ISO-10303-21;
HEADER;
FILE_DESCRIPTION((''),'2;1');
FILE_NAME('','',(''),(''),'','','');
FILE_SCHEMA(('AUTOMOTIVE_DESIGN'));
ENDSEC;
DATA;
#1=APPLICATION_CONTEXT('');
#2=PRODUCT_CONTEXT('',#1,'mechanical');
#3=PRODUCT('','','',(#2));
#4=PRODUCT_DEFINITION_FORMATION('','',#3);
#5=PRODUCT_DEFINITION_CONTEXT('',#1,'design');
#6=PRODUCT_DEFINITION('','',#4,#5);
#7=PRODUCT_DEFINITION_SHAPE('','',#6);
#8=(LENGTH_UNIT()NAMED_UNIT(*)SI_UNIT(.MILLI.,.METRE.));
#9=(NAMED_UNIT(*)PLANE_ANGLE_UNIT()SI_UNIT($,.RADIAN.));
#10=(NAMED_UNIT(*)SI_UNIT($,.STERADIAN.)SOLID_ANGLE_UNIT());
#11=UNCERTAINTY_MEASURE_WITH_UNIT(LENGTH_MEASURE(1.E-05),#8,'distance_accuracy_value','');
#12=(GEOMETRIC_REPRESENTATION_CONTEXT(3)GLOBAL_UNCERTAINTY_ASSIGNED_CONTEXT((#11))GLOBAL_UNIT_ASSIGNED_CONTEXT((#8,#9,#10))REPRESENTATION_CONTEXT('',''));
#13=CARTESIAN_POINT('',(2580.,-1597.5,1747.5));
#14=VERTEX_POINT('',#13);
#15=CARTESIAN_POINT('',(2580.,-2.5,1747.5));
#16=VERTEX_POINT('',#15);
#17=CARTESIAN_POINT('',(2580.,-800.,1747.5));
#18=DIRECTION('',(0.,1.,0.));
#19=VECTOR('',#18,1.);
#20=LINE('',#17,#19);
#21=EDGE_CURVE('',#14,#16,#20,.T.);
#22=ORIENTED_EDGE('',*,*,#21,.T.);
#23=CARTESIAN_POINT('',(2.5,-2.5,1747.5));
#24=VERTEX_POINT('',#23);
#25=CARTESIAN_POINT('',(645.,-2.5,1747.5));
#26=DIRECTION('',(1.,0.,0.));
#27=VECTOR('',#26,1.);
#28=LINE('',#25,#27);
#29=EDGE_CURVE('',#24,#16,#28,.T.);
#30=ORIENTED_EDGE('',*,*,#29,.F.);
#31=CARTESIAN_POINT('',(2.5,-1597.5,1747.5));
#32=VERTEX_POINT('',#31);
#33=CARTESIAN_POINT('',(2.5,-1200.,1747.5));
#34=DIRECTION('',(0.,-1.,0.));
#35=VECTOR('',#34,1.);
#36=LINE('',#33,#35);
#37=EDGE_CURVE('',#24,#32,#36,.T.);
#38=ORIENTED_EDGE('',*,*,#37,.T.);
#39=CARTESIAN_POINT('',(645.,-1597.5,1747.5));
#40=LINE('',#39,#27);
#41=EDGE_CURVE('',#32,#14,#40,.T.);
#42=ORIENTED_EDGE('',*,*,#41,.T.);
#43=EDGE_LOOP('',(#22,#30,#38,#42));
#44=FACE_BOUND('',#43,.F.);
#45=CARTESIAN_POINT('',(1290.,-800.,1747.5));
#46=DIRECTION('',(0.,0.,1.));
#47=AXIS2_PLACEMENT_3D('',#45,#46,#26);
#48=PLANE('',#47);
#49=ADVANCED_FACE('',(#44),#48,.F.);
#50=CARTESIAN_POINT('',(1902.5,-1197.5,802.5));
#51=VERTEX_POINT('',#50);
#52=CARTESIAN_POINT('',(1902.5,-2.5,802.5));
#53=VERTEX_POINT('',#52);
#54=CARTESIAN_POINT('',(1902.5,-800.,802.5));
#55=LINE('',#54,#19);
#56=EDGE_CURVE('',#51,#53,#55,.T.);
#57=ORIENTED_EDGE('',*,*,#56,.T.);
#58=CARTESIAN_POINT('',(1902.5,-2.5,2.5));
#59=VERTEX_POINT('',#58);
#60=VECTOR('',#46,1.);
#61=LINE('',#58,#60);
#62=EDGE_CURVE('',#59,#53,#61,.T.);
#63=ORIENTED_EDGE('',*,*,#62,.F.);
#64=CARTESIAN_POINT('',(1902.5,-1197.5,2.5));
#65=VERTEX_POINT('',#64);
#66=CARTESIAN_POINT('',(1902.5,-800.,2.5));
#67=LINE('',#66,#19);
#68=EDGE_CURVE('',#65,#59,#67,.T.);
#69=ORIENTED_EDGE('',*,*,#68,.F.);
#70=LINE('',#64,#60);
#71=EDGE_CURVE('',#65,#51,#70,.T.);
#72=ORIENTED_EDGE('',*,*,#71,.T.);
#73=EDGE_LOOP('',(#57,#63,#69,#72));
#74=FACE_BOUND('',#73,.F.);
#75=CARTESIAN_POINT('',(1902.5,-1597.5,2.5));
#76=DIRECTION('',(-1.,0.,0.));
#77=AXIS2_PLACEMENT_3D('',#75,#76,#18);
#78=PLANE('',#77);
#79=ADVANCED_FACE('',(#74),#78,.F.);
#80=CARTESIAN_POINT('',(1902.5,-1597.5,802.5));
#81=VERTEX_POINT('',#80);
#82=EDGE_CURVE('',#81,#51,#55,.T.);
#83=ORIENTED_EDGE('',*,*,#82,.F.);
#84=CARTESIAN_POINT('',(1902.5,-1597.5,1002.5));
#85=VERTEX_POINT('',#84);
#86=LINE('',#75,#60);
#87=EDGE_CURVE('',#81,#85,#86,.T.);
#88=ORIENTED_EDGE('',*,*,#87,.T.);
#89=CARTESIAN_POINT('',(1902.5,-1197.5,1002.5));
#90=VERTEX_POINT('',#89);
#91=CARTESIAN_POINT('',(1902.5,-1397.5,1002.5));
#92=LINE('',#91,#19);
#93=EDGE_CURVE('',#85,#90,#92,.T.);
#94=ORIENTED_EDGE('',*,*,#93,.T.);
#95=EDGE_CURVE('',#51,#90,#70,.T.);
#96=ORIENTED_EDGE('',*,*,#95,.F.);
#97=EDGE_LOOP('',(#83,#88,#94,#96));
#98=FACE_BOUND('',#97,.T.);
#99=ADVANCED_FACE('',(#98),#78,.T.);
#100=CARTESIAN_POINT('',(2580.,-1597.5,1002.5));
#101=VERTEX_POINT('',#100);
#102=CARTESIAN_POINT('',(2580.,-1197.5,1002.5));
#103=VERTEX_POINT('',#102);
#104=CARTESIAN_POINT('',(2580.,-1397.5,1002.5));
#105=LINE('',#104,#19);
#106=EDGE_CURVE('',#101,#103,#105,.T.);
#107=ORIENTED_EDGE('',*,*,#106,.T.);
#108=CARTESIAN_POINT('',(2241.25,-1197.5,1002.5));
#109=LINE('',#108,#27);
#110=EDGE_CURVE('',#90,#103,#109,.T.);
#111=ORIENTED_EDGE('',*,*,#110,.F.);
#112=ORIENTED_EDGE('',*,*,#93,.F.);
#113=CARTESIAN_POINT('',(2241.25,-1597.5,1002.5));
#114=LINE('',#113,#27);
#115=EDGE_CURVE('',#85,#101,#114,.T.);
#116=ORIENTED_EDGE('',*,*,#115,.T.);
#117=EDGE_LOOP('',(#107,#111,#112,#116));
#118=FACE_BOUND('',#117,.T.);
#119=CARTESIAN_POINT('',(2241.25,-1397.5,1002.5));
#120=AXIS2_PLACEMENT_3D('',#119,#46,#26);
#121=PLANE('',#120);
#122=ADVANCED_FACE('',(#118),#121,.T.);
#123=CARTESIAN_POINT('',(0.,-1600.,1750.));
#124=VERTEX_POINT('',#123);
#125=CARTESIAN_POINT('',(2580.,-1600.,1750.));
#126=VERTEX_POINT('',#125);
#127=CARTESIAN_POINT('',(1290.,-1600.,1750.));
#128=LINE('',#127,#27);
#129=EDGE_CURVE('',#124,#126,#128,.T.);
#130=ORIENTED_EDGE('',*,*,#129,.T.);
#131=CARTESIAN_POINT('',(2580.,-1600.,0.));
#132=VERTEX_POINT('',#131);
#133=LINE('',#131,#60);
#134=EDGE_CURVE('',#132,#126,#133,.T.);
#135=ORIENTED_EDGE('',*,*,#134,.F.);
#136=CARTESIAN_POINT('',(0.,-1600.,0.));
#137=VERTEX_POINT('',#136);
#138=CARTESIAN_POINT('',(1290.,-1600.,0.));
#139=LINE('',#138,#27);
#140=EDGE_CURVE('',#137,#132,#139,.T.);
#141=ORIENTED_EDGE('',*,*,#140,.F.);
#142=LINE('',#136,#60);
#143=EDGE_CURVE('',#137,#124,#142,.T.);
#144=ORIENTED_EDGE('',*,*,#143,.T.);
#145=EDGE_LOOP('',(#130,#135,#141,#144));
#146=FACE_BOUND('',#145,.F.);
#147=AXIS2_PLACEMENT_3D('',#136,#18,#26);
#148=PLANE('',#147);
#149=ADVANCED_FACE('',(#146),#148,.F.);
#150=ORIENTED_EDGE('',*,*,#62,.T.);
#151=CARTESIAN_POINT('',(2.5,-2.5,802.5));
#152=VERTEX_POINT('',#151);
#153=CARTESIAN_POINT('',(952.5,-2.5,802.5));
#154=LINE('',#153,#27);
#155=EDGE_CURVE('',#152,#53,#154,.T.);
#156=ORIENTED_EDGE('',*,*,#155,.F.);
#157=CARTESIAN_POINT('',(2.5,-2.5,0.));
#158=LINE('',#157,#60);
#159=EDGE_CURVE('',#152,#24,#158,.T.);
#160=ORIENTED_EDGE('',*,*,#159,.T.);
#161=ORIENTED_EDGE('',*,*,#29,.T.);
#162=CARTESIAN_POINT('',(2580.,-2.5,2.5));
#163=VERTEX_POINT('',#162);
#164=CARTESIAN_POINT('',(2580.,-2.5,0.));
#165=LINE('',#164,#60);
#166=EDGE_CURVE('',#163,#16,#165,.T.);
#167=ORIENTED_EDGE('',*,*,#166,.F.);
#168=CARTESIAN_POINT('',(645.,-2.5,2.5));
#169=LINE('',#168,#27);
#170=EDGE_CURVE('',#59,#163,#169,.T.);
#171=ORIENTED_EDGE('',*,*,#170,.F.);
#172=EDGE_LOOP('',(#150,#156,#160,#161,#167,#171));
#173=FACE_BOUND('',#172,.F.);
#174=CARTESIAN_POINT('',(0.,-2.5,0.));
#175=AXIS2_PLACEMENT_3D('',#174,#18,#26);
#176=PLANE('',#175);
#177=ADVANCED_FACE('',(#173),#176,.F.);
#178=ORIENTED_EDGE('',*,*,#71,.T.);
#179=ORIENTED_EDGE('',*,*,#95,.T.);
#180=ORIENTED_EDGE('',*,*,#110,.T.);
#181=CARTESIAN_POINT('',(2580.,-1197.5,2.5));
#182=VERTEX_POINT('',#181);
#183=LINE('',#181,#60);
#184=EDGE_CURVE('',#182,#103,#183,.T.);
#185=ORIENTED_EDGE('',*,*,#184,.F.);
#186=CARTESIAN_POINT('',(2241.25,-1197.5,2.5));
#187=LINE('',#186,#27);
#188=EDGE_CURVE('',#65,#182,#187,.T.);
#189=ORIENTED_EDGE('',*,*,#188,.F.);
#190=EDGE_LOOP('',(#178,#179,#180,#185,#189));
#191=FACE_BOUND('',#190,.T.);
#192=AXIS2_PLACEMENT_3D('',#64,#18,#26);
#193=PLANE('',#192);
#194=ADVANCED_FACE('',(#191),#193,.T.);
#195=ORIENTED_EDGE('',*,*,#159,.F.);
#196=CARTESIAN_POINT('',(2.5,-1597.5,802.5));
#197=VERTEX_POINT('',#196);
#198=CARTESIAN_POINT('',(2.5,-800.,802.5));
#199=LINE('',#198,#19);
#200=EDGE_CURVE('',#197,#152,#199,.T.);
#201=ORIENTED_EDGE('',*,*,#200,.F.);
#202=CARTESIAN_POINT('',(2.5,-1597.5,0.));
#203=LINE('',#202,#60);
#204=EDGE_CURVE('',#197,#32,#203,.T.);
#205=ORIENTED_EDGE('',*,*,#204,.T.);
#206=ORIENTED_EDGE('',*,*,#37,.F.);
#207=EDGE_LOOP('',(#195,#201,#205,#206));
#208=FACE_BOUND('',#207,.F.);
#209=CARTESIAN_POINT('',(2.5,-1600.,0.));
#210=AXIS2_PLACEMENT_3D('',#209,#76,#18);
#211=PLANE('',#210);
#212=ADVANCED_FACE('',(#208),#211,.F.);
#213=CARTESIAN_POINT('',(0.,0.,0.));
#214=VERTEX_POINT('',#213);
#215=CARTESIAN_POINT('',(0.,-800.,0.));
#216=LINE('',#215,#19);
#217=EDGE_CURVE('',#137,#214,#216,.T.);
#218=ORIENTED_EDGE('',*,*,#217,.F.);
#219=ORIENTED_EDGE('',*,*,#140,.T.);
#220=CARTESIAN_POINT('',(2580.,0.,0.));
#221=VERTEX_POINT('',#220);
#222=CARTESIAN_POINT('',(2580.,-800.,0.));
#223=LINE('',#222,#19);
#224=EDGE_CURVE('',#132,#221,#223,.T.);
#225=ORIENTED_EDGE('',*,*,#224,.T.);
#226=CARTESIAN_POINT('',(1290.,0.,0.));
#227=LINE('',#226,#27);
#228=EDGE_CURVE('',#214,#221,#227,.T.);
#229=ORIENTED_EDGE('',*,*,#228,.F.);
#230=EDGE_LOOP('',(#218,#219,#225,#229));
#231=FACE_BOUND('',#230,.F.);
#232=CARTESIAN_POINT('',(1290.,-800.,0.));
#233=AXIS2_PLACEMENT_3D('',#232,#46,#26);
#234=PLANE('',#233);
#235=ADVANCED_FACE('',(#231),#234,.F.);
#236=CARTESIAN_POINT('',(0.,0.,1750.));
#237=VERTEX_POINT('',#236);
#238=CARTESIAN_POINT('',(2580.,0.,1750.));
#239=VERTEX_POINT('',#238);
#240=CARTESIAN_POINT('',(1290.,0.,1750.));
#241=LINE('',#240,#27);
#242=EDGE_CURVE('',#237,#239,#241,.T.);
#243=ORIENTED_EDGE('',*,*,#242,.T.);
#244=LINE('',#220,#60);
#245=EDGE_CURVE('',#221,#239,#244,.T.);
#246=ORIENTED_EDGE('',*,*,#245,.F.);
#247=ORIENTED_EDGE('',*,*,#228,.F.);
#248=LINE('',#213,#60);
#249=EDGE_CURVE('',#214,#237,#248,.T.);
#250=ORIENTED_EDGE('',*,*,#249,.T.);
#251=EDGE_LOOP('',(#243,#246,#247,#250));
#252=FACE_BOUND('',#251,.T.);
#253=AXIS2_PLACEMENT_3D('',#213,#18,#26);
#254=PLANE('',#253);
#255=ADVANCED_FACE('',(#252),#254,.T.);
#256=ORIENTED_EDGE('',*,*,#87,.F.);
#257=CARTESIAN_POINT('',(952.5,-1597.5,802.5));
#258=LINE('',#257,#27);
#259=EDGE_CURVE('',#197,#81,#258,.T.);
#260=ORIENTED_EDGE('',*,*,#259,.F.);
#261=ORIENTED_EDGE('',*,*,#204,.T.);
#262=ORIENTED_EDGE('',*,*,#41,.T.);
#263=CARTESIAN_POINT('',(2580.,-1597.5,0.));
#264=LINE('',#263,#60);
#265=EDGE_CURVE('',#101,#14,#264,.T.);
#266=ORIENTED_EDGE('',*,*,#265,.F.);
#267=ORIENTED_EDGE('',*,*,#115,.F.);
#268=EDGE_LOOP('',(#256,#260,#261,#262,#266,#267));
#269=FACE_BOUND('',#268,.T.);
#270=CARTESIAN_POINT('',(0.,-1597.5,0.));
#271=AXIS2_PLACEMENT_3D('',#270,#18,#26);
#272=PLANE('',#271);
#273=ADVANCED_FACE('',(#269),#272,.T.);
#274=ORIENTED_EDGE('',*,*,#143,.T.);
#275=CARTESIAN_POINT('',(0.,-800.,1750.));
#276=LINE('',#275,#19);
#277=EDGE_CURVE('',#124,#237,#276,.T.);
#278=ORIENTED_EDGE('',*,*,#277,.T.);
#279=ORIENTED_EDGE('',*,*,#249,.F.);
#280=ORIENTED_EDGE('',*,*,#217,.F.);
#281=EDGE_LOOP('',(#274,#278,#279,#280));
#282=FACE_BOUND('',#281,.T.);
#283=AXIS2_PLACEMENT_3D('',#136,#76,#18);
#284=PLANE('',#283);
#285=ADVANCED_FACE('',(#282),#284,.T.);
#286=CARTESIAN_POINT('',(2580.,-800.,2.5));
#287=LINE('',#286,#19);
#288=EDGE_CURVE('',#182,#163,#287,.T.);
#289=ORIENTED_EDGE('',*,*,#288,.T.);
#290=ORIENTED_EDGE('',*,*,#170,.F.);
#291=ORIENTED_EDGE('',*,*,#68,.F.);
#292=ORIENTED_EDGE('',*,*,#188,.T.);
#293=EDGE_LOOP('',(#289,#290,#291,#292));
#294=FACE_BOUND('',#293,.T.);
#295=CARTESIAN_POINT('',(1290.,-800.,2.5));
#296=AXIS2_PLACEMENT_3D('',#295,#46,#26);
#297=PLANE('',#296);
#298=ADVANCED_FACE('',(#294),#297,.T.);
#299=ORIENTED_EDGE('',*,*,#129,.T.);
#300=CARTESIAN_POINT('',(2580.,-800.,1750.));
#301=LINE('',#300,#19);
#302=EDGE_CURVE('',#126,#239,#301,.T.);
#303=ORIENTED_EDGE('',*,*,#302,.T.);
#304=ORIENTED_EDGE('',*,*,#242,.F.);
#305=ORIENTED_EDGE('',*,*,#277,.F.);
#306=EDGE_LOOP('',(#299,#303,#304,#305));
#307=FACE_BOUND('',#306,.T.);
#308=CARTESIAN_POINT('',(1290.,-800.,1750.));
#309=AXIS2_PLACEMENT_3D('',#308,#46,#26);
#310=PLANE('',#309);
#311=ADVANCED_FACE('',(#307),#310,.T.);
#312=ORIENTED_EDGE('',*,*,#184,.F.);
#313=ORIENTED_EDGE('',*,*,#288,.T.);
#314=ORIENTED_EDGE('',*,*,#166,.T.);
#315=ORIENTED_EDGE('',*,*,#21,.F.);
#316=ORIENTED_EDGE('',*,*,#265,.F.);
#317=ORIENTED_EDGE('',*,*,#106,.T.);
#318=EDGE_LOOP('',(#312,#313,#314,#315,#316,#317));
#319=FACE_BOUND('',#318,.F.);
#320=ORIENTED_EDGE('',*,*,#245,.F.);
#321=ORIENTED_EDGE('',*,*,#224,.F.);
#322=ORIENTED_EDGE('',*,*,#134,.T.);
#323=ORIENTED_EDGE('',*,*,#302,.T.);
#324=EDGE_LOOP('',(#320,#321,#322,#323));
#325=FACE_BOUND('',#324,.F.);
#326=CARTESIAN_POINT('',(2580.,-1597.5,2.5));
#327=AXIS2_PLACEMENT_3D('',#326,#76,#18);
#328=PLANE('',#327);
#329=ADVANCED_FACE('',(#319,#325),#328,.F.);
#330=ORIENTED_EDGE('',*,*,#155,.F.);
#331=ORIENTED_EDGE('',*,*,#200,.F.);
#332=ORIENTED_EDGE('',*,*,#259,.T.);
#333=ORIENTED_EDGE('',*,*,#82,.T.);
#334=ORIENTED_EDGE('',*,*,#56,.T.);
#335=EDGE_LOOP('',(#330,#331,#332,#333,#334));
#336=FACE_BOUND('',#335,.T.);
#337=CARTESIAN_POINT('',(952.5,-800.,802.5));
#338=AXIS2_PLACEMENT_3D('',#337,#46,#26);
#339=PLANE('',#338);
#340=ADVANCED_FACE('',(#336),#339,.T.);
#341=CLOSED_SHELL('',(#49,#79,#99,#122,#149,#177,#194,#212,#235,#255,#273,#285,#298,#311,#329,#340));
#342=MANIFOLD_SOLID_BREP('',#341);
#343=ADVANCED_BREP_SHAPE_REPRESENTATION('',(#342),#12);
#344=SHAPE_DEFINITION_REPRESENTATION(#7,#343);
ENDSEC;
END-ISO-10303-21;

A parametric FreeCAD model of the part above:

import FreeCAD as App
import Part
import Sketcher

V = App.Vector


def faces_at(feature, points):
    """Names of the faces that lie closest to the given points."""
    faces = feature.Shape.Faces
    near = lambda p: min(range(len(faces)), key=lambda i: faces[i].distToShape(Part.Vertex(*p))[0])
    return sorted({f"Face{near(p) + 1}" for p in points})

doc = App.newDocument("Part")
params = doc.addObject("Spreadsheet::Sheet", "Params")
for row, (alias, value) in enumerate([
    ("sketch1_width", "2580 mm"),
    ("sketch1_height", "1600 mm"),
    ("pad1_length", "1750 mm"),
    ("thickness_wall", "2.5 mm"),
    ("sketch2_width", "1900 mm"),
    ("sketch2_height", "1595 mm"),
    ("pad2_length", "800 mm"),
    ("sketch3_height", "400 mm"),
    ("sketch3_width", "677.5 mm"),
    ("pad3_length", "1000 mm"),
], start=1):
    params.set(f"A{row}", alias)
    params.set(f"B{row}", "=" + value)
    params.setAlias(f"B{row}", alias)

body = doc.addObject("PartDesign::Body", "Body")

sketch1 = body.newObject("Sketcher::SketchObject", "Sketch")
sketch1.AttachmentSupport = (doc.getObject("XY_Plane"), [""])
sketch1.MapMode = "FlatFace"
sketch1.addGeometry(Part.LineSegment(V(0, 0, 0), V(0, -1600, 0)), False)
sketch1.addGeometry(Part.LineSegment(V(0, -1600, 0), V(2580, -1600, 0)), False)
sketch1.addGeometry(Part.LineSegment(V(2580, -1600, 0), V(2580, 0, 0)), False)
sketch1.addGeometry(Part.LineSegment(V(2580, 0, 0), V(0, 0, 0)), False)
sketch1.addConstraint(Sketcher.Constraint("Coincident", 0, 2, 1, 1))
sketch1.addConstraint(Sketcher.Constraint("Coincident", 1, 2, 2, 1))
sketch1.addConstraint(Sketcher.Constraint("Coincident", 2, 2, 3, 1))
sketch1.addConstraint(Sketcher.Constraint("Coincident", 3, 2, 0, 1))
sketch1.addConstraint(Sketcher.Constraint("Vertical", 0))
sketch1.addConstraint(Sketcher.Constraint("Horizontal", 1))
sketch1.addConstraint(Sketcher.Constraint("Vertical", 2))
sketch1.addConstraint(Sketcher.Constraint("Horizontal", 3))
sketch1.addConstraint(Sketcher.Constraint("Coincident", 3, 2, -1, 1))
sketch1.addConstraint(Sketcher.Constraint("DistanceX", 1, 1, 1, 2, 2580.0))
sketch1.addConstraint(Sketcher.Constraint("DistanceY", 0, 2, 0, 1, 1600.0))
sketch1.setExpression("Constraints[9]", "Params.sketch1_width")
sketch1.setExpression("Constraints[10]", "Params.sketch1_height")
pad1 = body.newObject("PartDesign::Pad", "Pad")
pad1.Profile = sketch1
pad1.setExpression("Length", "Params.pad1_length")
doc.recompute()

thickness = body.newObject("PartDesign::Thickness", "Thickness")
thickness.Base = (pad1, faces_at(pad1, [(2580, -800, 875)]))
thickness.setExpression("Value", "Params.thickness_wall")
thickness.Reversed = True
thickness.Join = "Arc"

sketch2 = body.newObject("Sketcher::SketchObject", "Sketch001")
sketch2.AttachmentSupport = (doc.getObject("XY_Plane"), [""])
sketch2.MapMode = "FlatFace"
sketch2.AttachmentOffset = App.Placement(V(0, 0, 2.5), App.Rotation())
sketch2.addGeometry(Part.LineSegment(V(2, -2, 0), V(2, -1598, 0)), False)
sketch2.addGeometry(Part.LineSegment(V(2, -1598, 0), V(1902, -1598, 0)), False)
sketch2.addGeometry(Part.LineSegment(V(1902, -1598, 0), V(1902, -2, 0)), False)
sketch2.addGeometry(Part.LineSegment(V(1902, -2, 0), V(2, -2, 0)), False)
sketch2.addConstraint(Sketcher.Constraint("Coincident", 0, 2, 1, 1))
sketch2.addConstraint(Sketcher.Constraint("Coincident", 1, 2, 2, 1))
sketch2.addConstraint(Sketcher.Constraint("Coincident", 2, 2, 3, 1))
sketch2.addConstraint(Sketcher.Constraint("Coincident", 3, 2, 0, 1))
sketch2.addConstraint(Sketcher.Constraint("Vertical", 0))
sketch2.addConstraint(Sketcher.Constraint("Horizontal", 1))
sketch2.addConstraint(Sketcher.Constraint("Vertical", 2))
sketch2.addConstraint(Sketcher.Constraint("Horizontal", 3))
sketch2.addConstraint(Sketcher.Constraint("DistanceX", 1, 1, 1, 2, 1900.0))
sketch2.addConstraint(Sketcher.Constraint("DistanceY", 0, 2, 0, 1, 1595.0))
sketch2.addConstraint(Sketcher.Constraint("DistanceX", -1, 1, 0, 2, 2.5))
sketch2.addConstraint(Sketcher.Constraint("DistanceY", 0, 2, -1, 1, 1597.5))
sketch2.setExpression("Constraints[8]", "Params.sketch2_width")
sketch2.setExpression("Constraints[9]", "Params.sketch2_height")
pad2 = body.newObject("PartDesign::Pad", "Pad001")
pad2.Profile = sketch2
pad2.setExpression("Length", "Params.pad2_length")

sketch3 = body.newObject("Sketcher::SketchObject", "Sketch002")
sketch3.AttachmentSupport = (doc.getObject("XY_Plane"), [""])
sketch3.MapMode = "FlatFace"
sketch3.AttachmentOffset = App.Placement(V(0, 0, 2.5), App.Rotation())
sketch3.addGeometry(Part.LineSegment(V(1902, -1198, 0), V(1902, -1598, 0)), False)
sketch3.addGeometry(Part.LineSegment(V(1902, -1598, 0), V(2580, -1598, 0)), False)
sketch3.addGeometry(Part.LineSegment(V(2580, -1598, 0), V(2580, -1198, 0)), False)
sketch3.addGeometry(Part.LineSegment(V(2580, -1198, 0), V(1902, -1198, 0)), False)
sketch3.addConstraint(Sketcher.Constraint("Coincident", 0, 2, 1, 1))
sketch3.addConstraint(Sketcher.Constraint("Coincident", 1, 2, 2, 1))
sketch3.addConstraint(Sketcher.Constraint("Coincident", 2, 2, 3, 1))
sketch3.addConstraint(Sketcher.Constraint("Coincident", 3, 2, 0, 1))
sketch3.addConstraint(Sketcher.Constraint("Vertical", 0))
sketch3.addConstraint(Sketcher.Constraint("Horizontal", 1))
sketch3.addConstraint(Sketcher.Constraint("Vertical", 2))
sketch3.addConstraint(Sketcher.Constraint("Horizontal", 3))
sketch3.addConstraint(Sketcher.Constraint("DistanceY", 0, 2, 0, 1, 400.0))
sketch3.addConstraint(Sketcher.Constraint("DistanceX", 1, 1, 1, 2, 677.5))
sketch3.addConstraint(Sketcher.Constraint("DistanceX", -1, 1, 1, 2, 2580.0))
sketch3.addConstraint(Sketcher.Constraint("DistanceY", 0, 2, -1, 1, 1597.5))
sketch3.setExpression("Constraints[8]", "Params.sketch3_height")
sketch3.setExpression("Constraints[9]", "Params.sketch3_width")
pad3 = body.newObject("PartDesign::Pad", "Pad002")
pad3.Profile = sketch3
pad3.setExpression("Length", "Params.pad3_length")

doc.recompute()
